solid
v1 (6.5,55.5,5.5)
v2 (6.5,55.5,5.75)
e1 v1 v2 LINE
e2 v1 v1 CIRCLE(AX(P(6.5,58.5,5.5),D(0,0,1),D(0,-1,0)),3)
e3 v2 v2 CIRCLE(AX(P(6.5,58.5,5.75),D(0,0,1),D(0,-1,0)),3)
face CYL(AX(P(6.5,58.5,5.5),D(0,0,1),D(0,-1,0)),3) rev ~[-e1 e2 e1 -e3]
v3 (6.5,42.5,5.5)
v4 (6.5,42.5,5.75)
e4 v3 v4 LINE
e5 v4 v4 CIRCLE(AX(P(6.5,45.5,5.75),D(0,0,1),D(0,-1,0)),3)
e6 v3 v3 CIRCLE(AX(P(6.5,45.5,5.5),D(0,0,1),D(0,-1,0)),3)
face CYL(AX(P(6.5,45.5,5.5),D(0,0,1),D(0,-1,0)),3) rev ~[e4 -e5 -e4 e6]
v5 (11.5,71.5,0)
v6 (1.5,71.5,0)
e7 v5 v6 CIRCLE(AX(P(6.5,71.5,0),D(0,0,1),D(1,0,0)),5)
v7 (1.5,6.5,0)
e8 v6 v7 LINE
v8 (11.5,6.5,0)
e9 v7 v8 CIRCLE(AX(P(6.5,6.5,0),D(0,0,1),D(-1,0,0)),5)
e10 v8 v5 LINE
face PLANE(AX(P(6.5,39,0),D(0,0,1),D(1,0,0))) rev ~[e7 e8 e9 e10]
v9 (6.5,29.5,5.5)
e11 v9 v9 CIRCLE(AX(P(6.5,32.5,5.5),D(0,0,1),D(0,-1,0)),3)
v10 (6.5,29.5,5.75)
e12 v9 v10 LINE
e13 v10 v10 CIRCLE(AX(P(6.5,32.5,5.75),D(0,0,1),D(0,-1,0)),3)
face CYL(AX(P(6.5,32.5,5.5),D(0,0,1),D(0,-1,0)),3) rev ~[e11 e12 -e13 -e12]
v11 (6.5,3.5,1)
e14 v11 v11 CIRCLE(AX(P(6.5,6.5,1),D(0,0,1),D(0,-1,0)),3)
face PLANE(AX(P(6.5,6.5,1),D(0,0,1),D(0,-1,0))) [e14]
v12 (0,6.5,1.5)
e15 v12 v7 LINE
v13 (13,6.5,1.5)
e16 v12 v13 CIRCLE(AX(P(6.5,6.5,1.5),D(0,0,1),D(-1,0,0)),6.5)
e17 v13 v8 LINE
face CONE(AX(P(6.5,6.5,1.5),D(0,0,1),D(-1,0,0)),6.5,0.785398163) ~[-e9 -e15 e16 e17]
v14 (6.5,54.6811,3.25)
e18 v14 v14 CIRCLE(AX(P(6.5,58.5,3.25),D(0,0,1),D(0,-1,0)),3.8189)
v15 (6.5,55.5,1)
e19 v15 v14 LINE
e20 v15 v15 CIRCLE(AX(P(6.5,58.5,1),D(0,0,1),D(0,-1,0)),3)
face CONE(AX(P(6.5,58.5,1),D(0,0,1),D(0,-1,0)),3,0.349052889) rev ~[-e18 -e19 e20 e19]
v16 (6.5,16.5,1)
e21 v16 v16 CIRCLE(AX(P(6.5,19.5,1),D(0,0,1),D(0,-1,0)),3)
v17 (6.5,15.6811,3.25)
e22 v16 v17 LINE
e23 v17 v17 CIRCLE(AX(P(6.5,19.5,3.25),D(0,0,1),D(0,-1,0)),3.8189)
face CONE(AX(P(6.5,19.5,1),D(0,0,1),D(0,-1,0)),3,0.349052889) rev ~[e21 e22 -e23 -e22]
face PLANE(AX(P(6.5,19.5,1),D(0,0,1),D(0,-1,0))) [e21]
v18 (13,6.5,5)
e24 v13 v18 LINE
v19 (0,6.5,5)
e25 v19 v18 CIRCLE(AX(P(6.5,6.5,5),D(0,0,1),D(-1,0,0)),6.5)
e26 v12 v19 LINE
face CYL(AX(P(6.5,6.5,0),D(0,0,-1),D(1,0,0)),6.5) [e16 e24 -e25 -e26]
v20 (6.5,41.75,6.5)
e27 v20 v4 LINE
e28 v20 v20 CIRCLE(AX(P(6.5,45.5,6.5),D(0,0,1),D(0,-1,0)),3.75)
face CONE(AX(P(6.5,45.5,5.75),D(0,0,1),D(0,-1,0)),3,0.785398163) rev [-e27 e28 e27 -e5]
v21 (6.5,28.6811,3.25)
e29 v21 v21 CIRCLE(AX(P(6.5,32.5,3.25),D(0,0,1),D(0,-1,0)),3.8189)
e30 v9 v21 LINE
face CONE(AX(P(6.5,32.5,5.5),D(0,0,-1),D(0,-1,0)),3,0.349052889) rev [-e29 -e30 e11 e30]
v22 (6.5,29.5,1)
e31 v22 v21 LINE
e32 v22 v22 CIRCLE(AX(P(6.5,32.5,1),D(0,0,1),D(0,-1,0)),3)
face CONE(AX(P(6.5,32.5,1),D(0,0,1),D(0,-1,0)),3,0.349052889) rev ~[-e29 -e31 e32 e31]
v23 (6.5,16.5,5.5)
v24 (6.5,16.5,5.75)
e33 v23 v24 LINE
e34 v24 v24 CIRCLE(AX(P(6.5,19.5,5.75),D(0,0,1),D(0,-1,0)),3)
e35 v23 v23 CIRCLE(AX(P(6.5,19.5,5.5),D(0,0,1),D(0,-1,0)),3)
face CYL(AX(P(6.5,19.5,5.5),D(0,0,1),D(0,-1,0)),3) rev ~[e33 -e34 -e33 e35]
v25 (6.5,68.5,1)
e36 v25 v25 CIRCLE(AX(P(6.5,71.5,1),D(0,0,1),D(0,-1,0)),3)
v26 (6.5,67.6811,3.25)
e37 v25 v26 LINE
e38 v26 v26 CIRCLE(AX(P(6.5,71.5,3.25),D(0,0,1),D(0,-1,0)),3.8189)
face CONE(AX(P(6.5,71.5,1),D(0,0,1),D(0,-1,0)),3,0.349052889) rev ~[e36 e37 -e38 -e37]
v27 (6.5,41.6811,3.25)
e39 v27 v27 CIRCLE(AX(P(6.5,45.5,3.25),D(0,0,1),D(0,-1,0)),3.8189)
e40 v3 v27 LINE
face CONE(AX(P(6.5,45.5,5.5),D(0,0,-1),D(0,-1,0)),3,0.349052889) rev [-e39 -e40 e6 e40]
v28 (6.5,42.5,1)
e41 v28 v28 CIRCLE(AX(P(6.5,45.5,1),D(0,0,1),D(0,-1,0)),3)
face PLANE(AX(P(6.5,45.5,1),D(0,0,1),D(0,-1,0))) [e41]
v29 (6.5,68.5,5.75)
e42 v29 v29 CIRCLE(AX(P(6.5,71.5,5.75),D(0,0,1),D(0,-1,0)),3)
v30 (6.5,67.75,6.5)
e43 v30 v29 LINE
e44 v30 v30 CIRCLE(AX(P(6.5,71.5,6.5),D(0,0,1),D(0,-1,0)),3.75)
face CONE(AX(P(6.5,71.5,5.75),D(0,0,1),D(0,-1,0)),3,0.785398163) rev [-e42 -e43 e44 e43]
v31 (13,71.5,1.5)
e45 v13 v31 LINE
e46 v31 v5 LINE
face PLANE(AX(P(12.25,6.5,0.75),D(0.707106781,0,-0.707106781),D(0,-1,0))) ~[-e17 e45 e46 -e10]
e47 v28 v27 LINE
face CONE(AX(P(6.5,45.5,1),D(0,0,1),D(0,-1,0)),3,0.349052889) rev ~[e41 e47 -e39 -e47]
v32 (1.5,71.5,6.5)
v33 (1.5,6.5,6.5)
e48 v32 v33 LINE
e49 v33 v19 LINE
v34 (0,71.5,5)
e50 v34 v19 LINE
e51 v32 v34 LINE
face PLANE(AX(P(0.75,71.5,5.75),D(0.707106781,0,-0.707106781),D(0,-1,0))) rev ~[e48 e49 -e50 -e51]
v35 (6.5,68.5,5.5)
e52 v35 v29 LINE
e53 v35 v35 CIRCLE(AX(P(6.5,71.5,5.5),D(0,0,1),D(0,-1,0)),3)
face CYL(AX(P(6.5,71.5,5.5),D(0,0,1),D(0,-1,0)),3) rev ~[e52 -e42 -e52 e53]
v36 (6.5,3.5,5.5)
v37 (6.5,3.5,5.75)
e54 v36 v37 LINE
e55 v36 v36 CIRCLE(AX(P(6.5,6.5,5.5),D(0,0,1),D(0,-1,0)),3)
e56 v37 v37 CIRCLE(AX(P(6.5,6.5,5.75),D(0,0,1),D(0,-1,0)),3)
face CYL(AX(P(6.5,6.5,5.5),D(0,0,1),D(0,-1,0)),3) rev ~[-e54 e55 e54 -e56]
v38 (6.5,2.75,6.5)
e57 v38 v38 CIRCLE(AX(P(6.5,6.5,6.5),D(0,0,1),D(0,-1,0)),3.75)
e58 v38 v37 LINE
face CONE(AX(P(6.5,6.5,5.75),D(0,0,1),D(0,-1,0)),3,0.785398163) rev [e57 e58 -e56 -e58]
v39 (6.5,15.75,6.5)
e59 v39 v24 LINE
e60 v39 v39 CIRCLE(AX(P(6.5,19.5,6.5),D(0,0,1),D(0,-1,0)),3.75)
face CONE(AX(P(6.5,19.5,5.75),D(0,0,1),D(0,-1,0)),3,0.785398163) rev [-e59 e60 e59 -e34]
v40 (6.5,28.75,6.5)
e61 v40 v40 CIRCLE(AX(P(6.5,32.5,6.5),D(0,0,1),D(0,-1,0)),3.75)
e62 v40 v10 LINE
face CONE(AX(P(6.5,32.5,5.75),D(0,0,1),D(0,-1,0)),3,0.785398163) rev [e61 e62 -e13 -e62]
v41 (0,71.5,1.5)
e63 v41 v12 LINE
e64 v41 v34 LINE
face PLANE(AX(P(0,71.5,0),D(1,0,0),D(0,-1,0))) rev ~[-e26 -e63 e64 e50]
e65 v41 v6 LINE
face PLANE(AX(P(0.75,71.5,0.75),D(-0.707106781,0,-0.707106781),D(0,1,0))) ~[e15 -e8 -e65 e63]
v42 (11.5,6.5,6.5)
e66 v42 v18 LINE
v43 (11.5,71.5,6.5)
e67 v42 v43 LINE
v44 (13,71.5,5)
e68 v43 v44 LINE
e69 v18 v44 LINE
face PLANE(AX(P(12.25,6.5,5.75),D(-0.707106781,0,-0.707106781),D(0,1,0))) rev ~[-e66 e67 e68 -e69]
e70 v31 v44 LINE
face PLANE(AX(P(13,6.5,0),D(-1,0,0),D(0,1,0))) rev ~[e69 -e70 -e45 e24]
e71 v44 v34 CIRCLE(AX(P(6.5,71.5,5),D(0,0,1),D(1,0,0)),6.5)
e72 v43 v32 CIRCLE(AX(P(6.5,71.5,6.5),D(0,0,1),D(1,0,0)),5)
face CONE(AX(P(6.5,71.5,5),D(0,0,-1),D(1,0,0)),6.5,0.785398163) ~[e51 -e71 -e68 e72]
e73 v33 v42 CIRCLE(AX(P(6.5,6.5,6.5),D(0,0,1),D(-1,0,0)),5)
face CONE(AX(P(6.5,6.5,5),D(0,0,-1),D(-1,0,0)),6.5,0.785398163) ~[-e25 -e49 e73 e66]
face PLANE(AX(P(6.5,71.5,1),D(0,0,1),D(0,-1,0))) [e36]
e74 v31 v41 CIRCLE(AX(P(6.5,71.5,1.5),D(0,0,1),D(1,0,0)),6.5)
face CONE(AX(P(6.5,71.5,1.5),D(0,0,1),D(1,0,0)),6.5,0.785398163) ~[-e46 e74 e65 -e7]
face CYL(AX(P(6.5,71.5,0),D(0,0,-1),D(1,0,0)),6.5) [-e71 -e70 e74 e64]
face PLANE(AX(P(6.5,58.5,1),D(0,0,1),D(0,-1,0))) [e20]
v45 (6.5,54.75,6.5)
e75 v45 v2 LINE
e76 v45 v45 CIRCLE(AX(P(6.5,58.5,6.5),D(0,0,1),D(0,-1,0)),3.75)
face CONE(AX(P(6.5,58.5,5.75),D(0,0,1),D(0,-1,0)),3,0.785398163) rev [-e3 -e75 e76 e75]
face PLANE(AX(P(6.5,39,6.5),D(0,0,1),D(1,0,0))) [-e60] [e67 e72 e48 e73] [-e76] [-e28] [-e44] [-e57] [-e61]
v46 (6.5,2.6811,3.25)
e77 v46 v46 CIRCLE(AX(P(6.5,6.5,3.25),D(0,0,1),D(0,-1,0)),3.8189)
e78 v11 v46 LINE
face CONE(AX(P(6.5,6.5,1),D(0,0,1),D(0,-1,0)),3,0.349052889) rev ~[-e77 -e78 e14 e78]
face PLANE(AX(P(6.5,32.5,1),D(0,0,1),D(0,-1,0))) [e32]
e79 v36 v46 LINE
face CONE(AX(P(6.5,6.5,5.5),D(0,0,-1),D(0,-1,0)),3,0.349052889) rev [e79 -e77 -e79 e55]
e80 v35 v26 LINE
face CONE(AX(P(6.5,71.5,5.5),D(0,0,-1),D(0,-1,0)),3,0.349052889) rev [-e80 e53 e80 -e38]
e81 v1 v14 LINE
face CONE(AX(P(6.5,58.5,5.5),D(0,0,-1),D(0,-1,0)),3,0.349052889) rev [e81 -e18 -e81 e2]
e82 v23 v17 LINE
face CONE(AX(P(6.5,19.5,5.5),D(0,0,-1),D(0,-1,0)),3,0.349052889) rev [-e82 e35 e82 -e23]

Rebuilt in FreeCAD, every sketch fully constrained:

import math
import FreeCAD as App
import Part
import Sketcher
Q = App.Units.Quantity


def edges_at(feature, points):
    """Names of the edges that pass closest to the given points."""
    edges = feature.Shape.Edges
    near = lambda p: min(range(len(edges)), key=lambda i: edges[i].distToShape(Part.Vertex(*p))[0])
    return sorted({f"Edge{near(p) + 1}" for p in points})

doc = App.newDocument("Part")
body = doc.addObject("PartDesign::Body", "Body")

# Sketch on XY plane
sketch1 = body.newObject("Sketcher::SketchObject", "Sketch")
sketch1.AttachmentSupport = (doc.getObject("XY_Plane"), [""])
sketch1.MapMode = "FlatFace"
sketch1.addGeometry(Part.ArcOfCircle(Part.Circle(App.Vector(6, 72, 0), App.Vector(0, 0, 1), 6), math.radians(0), math.radians(180)), False)
sketch1.addGeometry(Part.LineSegment(App.Vector(0, 72, 0), App.Vector(0, 6, 0)), False)
sketch1.addGeometry(Part.ArcOfCircle(Part.Circle(App.Vector(6, 6, 0), App.Vector(0, 0, 1), 6), math.radians(180), math.radians(360)), False)
sketch1.addGeometry(Part.LineSegment(App.Vector(13, 6, 0), App.Vector(13, 72, 0)), False)
sketch1.addConstraint(Sketcher.Constraint("Tangent", 0, 2, 1, 1))
sketch1.addConstraint(Sketcher.Constraint("Tangent", 1, 2, 2, 1))
sketch1.addConstraint(Sketcher.Constraint("Tangent", 2, 2, 3, 1))
sketch1.addConstraint(Sketcher.Constraint("Tangent", 3, 2, 0, 1))
sketch1.addConstraint(Sketcher.Constraint("Vertical", 1))
sketch1.addConstraint(Sketcher.Constraint("Vertical", 3))
sketch1.addConstraint(Sketcher.Constraint("PointOnObject", 0, 2, -2))
sketch1.addConstraint(Sketcher.Constraint("Radius", 0, 6.5))
sketch1.addConstraint(Sketcher.Constraint("DistanceY", 1, 2, 1, 1, 65.0))
sketch1.addConstraint(Sketcher.Constraint("DistanceY", -1, 1, 0, 3, 71.5))
pad1 = body.newObject("PartDesign::Pad", "Pad")
pad1.Profile = sketch1
pad1.Length = 6.5

# Sketch on YZ plane
sketch2 = body.newObject("Sketcher::SketchObject", "Sketch001")
sketch2.AttachmentSupport = (doc.getObject("YZ_Plane"), [""])
sketch2.MapMode = "FlatFace"
sketch2.AttachmentOffset = App.Placement(App.Vector(0, 0, 6.5), App.Rotation())
sketch2.addGeometry(Part.LineSegment(App.Vector(3.5, 6.5, 0), App.Vector(3.5, 5.5, 0)), False)
sketch2.addGeometry(Part.LineSegment(App.Vector(3.5, 5.5, 0), App.Vector(2.7, 3.2, 0)), False)
sketch2.addGeometry(Part.LineSegment(App.Vector(2.7, 3.2, 0), App.Vector(3.5, 1, 0)), False)
sketch2.addGeometry(Part.LineSegment(App.Vector(3.5, 1, 0), App.Vector(6.5, 1, 0)), False)
sketch2.addGeometry(Part.LineSegment(App.Vector(6.5, 1, 0), App.Vector(6.5, 6.5, 0)), False)
sketch2.addGeometry(Part.LineSegment(App.Vector(6.5, 6.5, 0), App.Vector(3.5, 6.5, 0)), False)
sketch2.addGeometry(Part.LineSegment(App.Vector(6.5, 1, 0), App.Vector(6.5, 6.5, 0)), True)  # axis
sketch2.addConstraint(Sketcher.Constraint("Coincident", 0, 2, 1, 1))
sketch2.addConstraint(Sketcher.Constraint("Coincident", 1, 2, 2, 1))
sketch2.addConstraint(Sketcher.Constraint("Coincident", 2, 2, 3, 1))
sketch2.addConstraint(Sketcher.Constraint("Coincident", 3, 2, 4, 1))
sketch2.addConstraint(Sketcher.Constraint("Coincident", 4, 2, 5, 1))
sketch2.addConstraint(Sketcher.Constraint("Coincident", 5, 2, 0, 1))
sketch2.addConstraint(Sketcher.Constraint("Vertical", 0))
sketch2.addConstraint(Sketcher.Constraint("Horizontal", 3))
sketch2.addConstraint(Sketcher.Constraint("Vertical", 4))
sketch2.addConstraint(Sketcher.Constraint("Horizontal", 5))
sketch2.addConstraint(Sketcher.Constraint("Vertical", 6))
sketch2.addConstraint(Sketcher.Constraint("Coincident", 6, 1, 3, 2))
sketch2.addConstraint(Sketcher.Constraint("Horizontal", 5, 2, 6, 2))
sketch2.addConstraint(Sketcher.Constraint("Vertical", 0, 2, 2, 2))
sketch2.addConstraint(Sketcher.Constraint("Equal", 1, 2))
sketch2.addConstraint(Sketcher.Constraint("DistanceX", 3, 1, 3, 2, 3.0))
sketch2.addConstraint(Sketcher.Constraint("DistanceY", 0, 2, 0, 1, 1.0))
sketch2.addConstraint(Sketcher.Constraint("Angle", 1, Q("-109.9993 deg")))
sketch2.addConstraint(Sketcher.Constraint("DistanceY", 4, 1, 4, 2, 5.5))
sketch2.addConstraint(Sketcher.Constraint("DistanceY", -1, 1, 2, 2, 1.0))
sketch2.addConstraint(Sketcher.Constraint("DistanceX", -1, 1, 0, 2, 3.5))
groove = body.newObject("PartDesign::Groove", "Groove")
groove.Profile = sketch2
groove.ReferenceAxis = (sketch2, ["Axis0"])
groove.Angle = 360
doc.recompute()

chamfer = body.newObject("PartDesign::Chamfer", "Chamfer")
chamfer.Base = (groove, edges_at(groove, [(6.5, 3.5, 6.5)]))
chamfer.Size = 0.75
doc.recompute()

linearpattern = body.newObject("PartDesign::LinearPattern", "LinearPattern")
linearpattern.Originals = [groove, chamfer]
linearpattern.Direction = (doc.getObject("Y_Axis"), [""])
linearpattern.Mode = "offset"
linearpattern.Offset = 13
linearpattern.Occurrences = 6
body.Tip = linearpattern
doc.recompute()

chamfer2 = body.newObject("PartDesign::Chamfer", "Chamfer001")
chamfer2.Base = (linearpattern, edges_at(linearpattern, [
    (13, 39, 6.5),
    (6.5, 0, 6.5),
    (0, 39, 6.5),
    (6.5, 78, 6.5),
    (13, 39, 0),
    (6.5, 0, 0),
    (0, 39, 0),
    (6.5, 78, 0),
]))
chamfer2.Size = 1.5

doc.recompute()
